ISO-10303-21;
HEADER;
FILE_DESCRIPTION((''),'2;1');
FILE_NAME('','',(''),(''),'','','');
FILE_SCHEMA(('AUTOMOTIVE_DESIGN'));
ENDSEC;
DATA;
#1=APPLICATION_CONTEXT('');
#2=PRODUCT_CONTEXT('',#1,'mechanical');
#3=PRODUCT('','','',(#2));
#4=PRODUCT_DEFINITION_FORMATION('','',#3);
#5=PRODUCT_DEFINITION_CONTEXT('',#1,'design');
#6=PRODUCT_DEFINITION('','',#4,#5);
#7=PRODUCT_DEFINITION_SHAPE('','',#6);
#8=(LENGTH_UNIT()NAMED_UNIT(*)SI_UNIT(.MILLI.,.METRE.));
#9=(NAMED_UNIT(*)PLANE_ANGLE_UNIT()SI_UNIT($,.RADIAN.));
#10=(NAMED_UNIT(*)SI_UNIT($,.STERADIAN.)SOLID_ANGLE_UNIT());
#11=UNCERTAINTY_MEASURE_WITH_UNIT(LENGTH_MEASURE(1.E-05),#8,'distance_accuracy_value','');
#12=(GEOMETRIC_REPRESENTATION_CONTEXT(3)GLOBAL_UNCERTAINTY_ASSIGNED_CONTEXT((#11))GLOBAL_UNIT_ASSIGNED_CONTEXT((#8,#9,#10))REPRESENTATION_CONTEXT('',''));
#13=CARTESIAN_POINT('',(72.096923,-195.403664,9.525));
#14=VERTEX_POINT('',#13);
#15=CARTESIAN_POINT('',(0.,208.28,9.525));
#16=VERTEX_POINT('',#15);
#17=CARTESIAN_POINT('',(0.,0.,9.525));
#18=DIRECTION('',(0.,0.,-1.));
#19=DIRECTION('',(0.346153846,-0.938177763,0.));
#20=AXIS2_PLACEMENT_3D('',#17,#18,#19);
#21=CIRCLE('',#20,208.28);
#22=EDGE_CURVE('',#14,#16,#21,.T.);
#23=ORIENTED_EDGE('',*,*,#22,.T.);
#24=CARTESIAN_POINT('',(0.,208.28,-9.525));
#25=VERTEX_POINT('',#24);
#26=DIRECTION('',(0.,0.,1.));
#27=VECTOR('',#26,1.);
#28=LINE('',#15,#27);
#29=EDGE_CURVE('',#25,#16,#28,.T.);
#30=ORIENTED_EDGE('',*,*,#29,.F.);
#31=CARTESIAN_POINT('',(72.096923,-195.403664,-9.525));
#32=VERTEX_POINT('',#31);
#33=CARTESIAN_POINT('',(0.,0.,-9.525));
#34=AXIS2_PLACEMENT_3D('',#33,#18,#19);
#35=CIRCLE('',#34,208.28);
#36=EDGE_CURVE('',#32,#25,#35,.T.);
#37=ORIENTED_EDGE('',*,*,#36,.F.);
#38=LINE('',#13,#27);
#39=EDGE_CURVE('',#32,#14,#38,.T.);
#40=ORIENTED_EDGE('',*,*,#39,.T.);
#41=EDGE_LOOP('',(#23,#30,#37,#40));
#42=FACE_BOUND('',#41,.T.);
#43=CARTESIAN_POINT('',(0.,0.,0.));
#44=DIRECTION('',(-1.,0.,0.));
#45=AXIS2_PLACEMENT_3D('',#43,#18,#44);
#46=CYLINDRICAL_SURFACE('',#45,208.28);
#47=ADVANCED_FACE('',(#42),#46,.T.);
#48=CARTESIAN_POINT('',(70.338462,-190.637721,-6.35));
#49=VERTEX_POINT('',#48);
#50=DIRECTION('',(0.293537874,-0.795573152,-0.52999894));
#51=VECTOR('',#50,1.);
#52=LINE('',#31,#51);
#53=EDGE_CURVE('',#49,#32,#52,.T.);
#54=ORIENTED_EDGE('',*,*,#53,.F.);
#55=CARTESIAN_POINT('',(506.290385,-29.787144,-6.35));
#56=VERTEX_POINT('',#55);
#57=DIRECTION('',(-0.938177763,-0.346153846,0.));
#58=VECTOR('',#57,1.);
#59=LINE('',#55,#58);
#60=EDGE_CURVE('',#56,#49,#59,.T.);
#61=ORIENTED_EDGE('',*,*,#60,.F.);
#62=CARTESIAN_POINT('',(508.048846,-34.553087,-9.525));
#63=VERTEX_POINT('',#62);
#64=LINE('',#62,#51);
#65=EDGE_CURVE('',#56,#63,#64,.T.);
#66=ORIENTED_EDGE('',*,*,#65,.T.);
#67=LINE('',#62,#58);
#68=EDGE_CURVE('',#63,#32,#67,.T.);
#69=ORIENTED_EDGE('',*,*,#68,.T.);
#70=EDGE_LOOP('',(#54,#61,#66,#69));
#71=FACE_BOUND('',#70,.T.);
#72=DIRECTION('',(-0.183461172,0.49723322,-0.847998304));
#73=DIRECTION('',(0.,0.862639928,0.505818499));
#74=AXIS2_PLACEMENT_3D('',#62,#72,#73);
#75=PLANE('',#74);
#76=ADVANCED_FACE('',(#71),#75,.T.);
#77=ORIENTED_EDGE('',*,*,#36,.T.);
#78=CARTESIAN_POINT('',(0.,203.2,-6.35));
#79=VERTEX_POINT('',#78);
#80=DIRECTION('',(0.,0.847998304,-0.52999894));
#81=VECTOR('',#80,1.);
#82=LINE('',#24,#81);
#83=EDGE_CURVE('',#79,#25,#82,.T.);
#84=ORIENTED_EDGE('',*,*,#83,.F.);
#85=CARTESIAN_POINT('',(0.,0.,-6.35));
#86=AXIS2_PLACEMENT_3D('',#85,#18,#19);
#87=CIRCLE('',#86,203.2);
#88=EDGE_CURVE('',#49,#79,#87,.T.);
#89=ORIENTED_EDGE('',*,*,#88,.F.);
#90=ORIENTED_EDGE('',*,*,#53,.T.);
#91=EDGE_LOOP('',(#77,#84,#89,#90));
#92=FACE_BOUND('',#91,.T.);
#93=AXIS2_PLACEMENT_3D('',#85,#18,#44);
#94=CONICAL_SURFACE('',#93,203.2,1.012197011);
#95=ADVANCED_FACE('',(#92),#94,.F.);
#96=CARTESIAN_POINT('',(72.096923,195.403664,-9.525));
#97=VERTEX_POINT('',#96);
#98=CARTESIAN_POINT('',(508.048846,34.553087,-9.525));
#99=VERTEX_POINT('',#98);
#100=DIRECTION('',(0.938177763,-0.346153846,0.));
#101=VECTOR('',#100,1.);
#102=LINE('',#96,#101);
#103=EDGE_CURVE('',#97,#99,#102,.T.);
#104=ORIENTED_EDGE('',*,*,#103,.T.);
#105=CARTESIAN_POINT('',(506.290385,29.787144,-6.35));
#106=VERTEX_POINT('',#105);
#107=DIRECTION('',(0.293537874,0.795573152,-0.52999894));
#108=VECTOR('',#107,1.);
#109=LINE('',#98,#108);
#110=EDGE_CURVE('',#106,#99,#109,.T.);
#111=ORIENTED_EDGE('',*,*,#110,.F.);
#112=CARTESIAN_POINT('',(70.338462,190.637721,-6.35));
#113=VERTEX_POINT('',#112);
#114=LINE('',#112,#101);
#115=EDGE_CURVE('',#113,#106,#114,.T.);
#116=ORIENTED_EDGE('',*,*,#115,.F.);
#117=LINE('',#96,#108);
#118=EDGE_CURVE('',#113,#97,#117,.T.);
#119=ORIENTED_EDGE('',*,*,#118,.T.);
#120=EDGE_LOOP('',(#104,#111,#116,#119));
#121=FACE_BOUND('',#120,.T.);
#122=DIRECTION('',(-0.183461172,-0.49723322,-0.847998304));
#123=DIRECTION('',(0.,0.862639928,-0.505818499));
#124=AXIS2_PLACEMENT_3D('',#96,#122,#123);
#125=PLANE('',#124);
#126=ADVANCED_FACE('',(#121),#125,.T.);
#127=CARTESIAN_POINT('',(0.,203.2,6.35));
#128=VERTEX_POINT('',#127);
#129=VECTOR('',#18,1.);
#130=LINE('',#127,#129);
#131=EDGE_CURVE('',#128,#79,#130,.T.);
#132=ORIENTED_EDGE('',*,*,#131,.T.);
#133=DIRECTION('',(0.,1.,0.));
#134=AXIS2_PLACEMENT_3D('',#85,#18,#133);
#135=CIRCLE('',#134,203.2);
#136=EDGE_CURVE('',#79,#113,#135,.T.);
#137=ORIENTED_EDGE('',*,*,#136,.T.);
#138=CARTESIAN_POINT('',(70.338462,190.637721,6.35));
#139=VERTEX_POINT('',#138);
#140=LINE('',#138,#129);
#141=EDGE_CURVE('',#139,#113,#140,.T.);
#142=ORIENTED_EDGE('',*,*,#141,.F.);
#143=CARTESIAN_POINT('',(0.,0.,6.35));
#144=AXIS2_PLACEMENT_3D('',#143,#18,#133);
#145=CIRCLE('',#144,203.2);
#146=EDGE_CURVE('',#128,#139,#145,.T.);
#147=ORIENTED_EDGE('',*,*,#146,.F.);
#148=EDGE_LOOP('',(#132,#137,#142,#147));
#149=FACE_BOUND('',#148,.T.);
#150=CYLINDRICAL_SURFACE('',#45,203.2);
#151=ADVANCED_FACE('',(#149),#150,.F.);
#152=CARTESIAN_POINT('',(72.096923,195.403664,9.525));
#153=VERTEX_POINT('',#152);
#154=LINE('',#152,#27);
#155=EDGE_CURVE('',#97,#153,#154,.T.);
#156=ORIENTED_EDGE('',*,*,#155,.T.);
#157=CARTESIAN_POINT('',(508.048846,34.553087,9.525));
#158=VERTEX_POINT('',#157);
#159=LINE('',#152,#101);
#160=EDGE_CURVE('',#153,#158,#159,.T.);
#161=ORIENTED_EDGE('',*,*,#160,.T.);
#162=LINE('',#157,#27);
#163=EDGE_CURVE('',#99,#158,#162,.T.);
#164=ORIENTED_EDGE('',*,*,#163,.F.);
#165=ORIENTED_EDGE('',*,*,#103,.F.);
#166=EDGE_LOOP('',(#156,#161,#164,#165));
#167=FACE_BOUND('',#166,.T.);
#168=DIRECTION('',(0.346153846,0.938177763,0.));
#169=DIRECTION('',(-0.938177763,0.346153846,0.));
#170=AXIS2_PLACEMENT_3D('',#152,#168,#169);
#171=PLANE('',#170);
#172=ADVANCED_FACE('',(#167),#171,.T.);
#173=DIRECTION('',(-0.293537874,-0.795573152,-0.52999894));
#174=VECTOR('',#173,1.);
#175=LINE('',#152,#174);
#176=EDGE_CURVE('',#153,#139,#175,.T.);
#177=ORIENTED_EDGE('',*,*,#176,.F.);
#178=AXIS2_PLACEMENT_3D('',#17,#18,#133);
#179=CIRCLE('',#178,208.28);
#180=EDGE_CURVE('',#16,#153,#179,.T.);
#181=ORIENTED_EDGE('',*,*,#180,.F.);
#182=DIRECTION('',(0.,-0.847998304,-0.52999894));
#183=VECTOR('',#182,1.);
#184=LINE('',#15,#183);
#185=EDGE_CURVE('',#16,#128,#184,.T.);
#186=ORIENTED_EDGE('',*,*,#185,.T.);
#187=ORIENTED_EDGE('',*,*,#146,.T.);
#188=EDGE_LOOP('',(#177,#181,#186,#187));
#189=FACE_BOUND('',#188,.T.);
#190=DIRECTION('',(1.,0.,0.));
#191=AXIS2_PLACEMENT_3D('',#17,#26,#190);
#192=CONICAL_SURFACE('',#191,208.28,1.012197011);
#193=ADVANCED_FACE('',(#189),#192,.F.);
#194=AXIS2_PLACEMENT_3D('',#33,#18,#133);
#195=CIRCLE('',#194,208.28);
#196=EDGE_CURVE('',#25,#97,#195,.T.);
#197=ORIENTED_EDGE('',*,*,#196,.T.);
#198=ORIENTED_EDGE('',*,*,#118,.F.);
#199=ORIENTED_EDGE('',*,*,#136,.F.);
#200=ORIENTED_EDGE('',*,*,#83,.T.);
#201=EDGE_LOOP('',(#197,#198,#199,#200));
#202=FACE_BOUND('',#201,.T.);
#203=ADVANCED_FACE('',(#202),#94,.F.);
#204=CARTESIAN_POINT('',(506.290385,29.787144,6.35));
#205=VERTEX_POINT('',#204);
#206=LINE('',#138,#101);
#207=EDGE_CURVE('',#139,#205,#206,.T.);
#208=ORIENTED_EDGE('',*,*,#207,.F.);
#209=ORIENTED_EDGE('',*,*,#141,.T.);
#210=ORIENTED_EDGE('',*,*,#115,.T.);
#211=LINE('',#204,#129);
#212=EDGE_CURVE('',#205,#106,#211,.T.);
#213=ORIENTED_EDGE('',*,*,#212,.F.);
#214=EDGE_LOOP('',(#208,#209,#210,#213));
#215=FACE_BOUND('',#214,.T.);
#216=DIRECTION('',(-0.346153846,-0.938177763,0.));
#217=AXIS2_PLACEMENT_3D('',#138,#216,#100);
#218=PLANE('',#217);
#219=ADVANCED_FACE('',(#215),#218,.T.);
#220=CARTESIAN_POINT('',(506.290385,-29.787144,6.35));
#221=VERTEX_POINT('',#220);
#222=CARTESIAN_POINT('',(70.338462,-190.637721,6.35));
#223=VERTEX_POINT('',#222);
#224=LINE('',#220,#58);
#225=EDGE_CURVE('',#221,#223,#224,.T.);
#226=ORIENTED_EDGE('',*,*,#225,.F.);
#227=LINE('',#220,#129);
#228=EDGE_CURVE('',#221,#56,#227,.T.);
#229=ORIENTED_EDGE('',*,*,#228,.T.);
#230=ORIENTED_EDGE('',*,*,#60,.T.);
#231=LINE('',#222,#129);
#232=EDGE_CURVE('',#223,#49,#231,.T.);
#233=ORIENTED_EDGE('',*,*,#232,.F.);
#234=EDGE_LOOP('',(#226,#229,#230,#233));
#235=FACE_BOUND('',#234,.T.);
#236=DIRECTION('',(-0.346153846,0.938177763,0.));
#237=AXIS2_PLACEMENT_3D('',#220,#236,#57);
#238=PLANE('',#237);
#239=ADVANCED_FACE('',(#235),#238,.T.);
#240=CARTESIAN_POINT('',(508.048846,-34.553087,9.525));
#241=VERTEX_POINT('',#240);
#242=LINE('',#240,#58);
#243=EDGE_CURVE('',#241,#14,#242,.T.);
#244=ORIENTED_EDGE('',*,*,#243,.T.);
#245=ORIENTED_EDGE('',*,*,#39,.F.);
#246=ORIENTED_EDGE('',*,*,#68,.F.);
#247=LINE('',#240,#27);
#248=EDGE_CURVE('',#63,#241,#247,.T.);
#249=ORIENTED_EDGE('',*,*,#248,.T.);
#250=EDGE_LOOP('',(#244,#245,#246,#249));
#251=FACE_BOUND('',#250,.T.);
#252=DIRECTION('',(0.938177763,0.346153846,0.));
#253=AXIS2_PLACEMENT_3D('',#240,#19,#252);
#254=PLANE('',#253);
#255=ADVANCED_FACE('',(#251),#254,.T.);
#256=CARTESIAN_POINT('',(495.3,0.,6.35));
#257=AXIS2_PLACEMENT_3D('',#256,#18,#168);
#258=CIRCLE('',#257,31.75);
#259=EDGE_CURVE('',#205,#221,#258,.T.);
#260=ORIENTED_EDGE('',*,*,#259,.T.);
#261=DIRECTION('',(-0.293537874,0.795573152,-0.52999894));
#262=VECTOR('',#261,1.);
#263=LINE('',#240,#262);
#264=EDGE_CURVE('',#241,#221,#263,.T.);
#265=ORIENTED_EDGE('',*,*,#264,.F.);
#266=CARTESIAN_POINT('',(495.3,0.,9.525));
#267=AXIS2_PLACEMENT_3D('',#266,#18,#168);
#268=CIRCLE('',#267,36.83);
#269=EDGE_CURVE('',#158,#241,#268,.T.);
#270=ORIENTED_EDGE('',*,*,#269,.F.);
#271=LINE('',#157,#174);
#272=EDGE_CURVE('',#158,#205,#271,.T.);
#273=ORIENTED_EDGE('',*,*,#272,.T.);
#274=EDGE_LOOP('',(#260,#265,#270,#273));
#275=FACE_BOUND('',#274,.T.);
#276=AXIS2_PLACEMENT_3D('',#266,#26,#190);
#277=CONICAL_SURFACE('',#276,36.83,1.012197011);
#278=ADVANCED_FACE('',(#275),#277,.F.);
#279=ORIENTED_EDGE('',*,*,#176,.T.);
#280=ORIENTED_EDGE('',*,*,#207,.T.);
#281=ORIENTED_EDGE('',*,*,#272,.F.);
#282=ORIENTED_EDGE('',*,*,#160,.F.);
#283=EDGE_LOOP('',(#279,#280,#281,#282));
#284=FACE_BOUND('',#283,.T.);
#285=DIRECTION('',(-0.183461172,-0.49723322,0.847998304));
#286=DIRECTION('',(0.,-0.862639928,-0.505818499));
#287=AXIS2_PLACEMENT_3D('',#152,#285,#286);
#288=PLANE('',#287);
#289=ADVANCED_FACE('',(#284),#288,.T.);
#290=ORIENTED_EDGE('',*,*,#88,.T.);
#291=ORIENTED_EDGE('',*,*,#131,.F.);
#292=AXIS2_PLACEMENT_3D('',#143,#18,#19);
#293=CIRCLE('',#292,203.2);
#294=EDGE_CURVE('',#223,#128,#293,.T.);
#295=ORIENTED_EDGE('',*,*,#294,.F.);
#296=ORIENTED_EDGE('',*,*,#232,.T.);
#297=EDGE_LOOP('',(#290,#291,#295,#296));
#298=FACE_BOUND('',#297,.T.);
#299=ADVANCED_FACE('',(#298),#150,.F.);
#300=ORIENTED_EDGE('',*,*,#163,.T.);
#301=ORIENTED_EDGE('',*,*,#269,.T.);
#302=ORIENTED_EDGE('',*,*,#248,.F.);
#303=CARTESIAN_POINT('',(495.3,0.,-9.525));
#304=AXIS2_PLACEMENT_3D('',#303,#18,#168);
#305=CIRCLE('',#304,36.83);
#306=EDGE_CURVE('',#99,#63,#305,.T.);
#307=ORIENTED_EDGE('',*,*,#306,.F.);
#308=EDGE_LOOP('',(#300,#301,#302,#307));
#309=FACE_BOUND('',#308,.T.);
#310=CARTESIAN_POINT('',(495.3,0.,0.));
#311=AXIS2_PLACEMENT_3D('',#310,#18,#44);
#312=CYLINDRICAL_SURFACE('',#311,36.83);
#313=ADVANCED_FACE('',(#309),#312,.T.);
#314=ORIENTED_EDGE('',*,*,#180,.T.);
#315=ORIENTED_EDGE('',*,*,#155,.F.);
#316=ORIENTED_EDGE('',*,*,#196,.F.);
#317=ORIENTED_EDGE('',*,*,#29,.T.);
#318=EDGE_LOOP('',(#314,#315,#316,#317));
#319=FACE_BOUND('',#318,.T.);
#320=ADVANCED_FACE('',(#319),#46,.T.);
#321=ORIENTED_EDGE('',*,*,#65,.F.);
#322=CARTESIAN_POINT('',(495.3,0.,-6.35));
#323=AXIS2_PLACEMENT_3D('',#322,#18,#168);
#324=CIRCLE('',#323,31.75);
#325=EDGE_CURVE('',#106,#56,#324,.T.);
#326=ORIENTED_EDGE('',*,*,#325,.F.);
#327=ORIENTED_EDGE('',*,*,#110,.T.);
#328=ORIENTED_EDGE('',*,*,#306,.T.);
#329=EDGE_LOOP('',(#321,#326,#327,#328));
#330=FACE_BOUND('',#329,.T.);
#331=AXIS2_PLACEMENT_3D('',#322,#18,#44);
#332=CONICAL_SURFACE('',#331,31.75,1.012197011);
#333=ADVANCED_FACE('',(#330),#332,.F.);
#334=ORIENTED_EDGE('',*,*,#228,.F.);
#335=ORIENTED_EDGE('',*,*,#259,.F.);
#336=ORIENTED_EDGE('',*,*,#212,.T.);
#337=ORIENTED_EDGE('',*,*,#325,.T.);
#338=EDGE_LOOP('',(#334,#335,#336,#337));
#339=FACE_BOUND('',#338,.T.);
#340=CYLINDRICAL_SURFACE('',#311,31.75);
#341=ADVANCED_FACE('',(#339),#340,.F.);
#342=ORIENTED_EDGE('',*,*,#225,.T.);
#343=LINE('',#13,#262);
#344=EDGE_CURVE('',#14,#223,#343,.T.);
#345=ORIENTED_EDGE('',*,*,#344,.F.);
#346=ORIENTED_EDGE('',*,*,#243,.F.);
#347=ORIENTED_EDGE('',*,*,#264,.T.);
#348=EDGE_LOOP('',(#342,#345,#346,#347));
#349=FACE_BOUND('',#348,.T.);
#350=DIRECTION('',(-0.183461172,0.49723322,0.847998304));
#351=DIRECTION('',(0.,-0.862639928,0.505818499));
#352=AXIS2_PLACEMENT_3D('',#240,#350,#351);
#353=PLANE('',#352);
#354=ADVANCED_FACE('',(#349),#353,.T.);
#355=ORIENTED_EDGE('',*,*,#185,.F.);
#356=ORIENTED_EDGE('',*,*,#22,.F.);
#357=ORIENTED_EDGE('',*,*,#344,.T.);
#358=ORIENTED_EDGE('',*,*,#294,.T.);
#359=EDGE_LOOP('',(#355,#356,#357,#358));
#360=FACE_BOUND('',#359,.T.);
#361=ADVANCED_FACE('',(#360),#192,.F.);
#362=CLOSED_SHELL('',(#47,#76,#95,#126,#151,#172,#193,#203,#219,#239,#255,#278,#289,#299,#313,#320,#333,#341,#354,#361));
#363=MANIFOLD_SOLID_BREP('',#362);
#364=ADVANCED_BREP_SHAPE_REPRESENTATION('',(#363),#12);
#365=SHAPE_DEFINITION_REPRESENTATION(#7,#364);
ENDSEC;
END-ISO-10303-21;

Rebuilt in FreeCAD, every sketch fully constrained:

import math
import FreeCAD as App
import Part
import Sketcher
from FreeCAD import Vector
Q = App.Units.Quantity


def add_polygon(sketch, points):
    """Adds a closed chain of lines whose ends are joined by coincident constraints."""
    first, n = sketch.GeometryCount, len(points)
    for a, b in zip(points, points[1:] + points[:1]):
        sketch.addGeometry(Part.LineSegment(App.Vector(*a, 0), App.Vector(*b, 0)), False)
    for i in range(n):
        sketch.addConstraint(Sketcher.Constraint("Coincident", first + i, 2, first + (i + 1) % n, 1))

doc = App.newDocument("Part")
body = doc.addObject("PartDesign::Body", "Body")

# Sketch on YZ plane
sketch1 = body.newObject("Sketcher::SketchObject", "Sketch")
sketch1.AttachmentSupport = (doc.getObject("YZ_Plane"), [""])
sketch1.MapMode = "FlatFace"
add_polygon(sketch1, [(203, 6), (203, -6), (208, -10), (208, 10)])  # lines 0-3
sketch1.addConstraint([
    Sketcher.Constraint("Vertical", 0),
    Sketcher.Constraint("Vertical", 2),
    Sketcher.Constraint("Equal", 1, 3),
    Sketcher.Constraint("DistanceY", 0, 2, 0, 1, Q("0.5 in")),
    Sketcher.Constraint("DistanceX", -1, 1, 0, 2, Q("8 in")),
    Sketcher.Constraint("DistanceY", 2, 1, 2, 2, Q("0.75 in")),
    Sketcher.Constraint("DistanceX", -1, 1, 1, 2, Q("8.2 in")),
    Sketcher.Constraint("DistanceY", 0, 2, -1, 1, Q("0.25 in")),
])

# Sketch on XY plane
sketch2 = body.newObject("Sketcher::SketchObject", "Sketch001")
sketch2.AttachmentSupport = (doc.getObject("XY_Plane"), [""])
sketch2.MapMode = "FlatFace"
sketch2.addGeometry([
    Part.LineSegment(Vector(70, 191, 0), Vector(506, 30, 0)),
    Part.ArcOfCircle(Part.Circle(Vector(495, 0, 0), Vector(0, 0, 1), 32), math.radians(-70), math.radians(70)),
    Part.LineSegment(Vector(506, -30, 0), Vector(70, -191, 0)),
    Part.ArcOfCircle(Part.Circle(Vector(0, 0, 0), Vector(0, 0, 1), 203), math.radians(70), math.radians(290)),
], False)
sketch2.addConstraint([
    Sketcher.Constraint("Tangent", 0, 2, 1, 2),
    Sketcher.Constraint("Tangent", 1, 1, 2, 1),
    Sketcher.Constraint("Tangent", 2, 2, 3, 2),
    Sketcher.Constraint("Tangent", 3, 1, 0, 1),
    Sketcher.Constraint("Coincident", 3, 3, -1, 1),
    Sketcher.Constraint("PointOnObject", 1, 3, -1),
    Sketcher.Constraint("Radius", 3, Q("8 in")),
    Sketcher.Constraint("Radius", 1, Q("1.25 in")),
    Sketcher.Constraint("DistanceX", -1, 1, 1, 3, Q("19.5 in")),
])
doc.recompute()

additivepipe = body.newObject("PartDesign::AdditivePipe", "AdditivePipe")
additivepipe.Profile = sketch1
additivepipe.Spine = (sketch2, ["Edge1", "Edge2", "Edge3", "Edge4"])

doc.recompute()
